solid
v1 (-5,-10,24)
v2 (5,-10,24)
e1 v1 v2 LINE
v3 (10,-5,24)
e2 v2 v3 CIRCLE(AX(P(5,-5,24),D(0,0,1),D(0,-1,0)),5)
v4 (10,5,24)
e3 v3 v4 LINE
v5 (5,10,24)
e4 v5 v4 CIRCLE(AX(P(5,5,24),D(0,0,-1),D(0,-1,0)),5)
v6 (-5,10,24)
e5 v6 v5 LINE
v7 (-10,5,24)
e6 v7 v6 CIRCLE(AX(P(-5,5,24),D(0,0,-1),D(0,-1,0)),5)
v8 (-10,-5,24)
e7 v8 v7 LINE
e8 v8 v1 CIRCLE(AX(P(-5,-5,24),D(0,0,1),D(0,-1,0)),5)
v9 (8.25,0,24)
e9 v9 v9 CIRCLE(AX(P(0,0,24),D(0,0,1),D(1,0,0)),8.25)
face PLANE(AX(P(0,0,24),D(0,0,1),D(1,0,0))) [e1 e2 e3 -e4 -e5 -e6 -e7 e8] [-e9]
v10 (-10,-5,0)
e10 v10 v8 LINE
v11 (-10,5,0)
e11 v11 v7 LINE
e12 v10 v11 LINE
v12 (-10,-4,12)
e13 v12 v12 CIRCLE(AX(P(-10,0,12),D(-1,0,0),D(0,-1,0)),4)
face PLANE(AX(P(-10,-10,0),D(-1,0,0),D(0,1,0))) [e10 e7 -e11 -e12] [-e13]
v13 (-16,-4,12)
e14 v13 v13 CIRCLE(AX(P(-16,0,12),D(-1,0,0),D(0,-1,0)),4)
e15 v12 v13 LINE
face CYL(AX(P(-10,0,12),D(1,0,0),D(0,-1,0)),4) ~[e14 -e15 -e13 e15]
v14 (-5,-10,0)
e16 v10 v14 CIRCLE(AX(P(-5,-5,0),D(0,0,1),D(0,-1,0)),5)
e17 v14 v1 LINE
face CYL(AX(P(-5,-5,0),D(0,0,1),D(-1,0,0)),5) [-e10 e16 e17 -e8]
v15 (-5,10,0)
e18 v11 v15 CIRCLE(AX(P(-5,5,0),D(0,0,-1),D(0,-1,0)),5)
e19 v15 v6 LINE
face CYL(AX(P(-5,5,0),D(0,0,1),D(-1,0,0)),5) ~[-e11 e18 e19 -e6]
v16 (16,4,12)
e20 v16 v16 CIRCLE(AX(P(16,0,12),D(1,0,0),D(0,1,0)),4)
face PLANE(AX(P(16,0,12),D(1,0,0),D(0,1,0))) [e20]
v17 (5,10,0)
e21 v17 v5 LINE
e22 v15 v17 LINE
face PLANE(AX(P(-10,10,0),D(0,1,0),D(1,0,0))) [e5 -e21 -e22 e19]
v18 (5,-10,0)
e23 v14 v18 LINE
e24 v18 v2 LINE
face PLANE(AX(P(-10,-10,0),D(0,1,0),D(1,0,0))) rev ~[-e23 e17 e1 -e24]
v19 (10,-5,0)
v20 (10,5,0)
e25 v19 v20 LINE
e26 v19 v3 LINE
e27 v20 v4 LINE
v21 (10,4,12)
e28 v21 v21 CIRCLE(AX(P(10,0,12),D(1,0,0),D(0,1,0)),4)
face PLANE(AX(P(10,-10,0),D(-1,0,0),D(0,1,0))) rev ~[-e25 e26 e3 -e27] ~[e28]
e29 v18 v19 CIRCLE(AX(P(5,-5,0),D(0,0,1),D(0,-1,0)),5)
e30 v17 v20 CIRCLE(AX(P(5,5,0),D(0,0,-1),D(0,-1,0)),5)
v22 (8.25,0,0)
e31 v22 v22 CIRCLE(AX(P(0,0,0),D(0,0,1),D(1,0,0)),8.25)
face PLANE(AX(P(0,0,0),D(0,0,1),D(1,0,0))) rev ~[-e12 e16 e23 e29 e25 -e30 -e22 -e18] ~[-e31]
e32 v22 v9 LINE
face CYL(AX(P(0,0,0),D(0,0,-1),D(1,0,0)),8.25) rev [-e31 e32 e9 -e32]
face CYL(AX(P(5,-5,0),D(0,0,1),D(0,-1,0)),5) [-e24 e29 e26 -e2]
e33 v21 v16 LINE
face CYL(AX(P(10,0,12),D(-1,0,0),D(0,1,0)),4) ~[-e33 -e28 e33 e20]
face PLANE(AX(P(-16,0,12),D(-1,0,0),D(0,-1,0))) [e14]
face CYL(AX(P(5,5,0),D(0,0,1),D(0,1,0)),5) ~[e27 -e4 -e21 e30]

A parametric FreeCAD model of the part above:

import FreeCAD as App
import Part
import Sketcher


def edges_at(feature, points):
    """Names of the edges that pass closest to the given points."""
    edges = feature.Shape.Edges
    near = lambda p: min(range(len(edges)), key=lambda i: edges[i].distToShape(Part.Vertex(*p))[0])
    return sorted({f"Edge{near(p) + 1}" for p in points})


def add_polygon(sketch, points):
    """Adds a closed chain of lines whose ends are joined by coincident constraints."""
    first, n = sketch.GeometryCount, len(points)
    for a, b in zip(points, points[1:] + points[:1]):
        sketch.addGeometry(Part.LineSegment(App.Vector(*a, 0), App.Vector(*b, 0)), False)
    for i in range(n):
        sketch.addConstraint(Sketcher.Constraint("Coincident", first + i, 2, first + (i + 1) % n, 1))

doc = App.newDocument("Part")
body = doc.addObject("PartDesign::Body", "Body")

# Sketch on XY plane
sketch1 = body.newObject("Sketcher::SketchObject", "Sketch")
sketch1.AttachmentSupport = (doc.getObject("XY_Plane"), [""])
sketch1.MapMode = "FlatFace"
add_polygon(sketch1, [(-10, 10), (-10, -10), (10, -10), (10, 10)])  # lines 0-3
sketch1.addGeometry(Part.Circle(App.Vector(0, 0, 0), App.Vector(0, 0, 1), 8), False)  # 4
sketch1.addConstraint([
    Sketcher.Constraint("Vertical", 0),
    Sketcher.Constraint("Horizontal", 1),
    Sketcher.Constraint("Vertical", 2),
    Sketcher.Constraint("Horizontal", 3),
    Sketcher.Constraint("Coincident", 4, 3, -1, 1),
    Sketcher.Constraint("Symmetric", 0, 2, 2, 2, -1, 1),
    Sketcher.Constraint("Equal", 3, 0),
    Sketcher.Constraint("Diameter", 4, 16.5),
    Sketcher.Constraint("DistanceX", 1, 1, 1, 2, 20.0),
])
pad1 = body.newObject("PartDesign::Pad", "Pad")
pad1.Profile = sketch1
pad1.Length = 24
doc.recompute()

fillet = body.newObject("PartDesign::Fillet", "Fillet")
fillet.Base = (pad1, edges_at(pad1, [
    (10, 10, 12),
    (10, -10, 12),
    (-10, 10, 12),
    (-10, -10, 12),
]))
fillet.Radius = 5

# Sketch on YZ plane
sketch2 = body.newObject("Sketcher::SketchObject", "Sketch001")
sketch2.AttachmentSupport = (doc.getObject("YZ_Plane"), [""])
sketch2.MapMode = "FlatFace"
sketch2.AttachmentOffset = App.Placement(App.Vector(0, 0, 10), App.Rotation())
sketch2.addGeometry(Part.Circle(App.Vector(0, 12, 0), App.Vector(0, 0, 1), 4), False)
sketch2.addConstraint([
    Sketcher.Constraint("PointOnObject", 0, 3, -2),
    Sketcher.Constraint("Diameter", 0, 8.0),
    Sketcher.Constraint("DistanceY", -1, 1, 0, 3, 12.0),
])
pad2 = body.newObject("PartDesign::Pad", "Pad001")
pad2.Profile = sketch2
pad2.Length = 6

# Sketch on YZ plane
sketch3 = body.newObject("Sketcher::SketchObject", "Sketch002")
sketch3.AttachmentSupport = (doc.getObject("YZ_Plane"), [""])
sketch3.MapMode = "FlatFace"
sketch3.AttachmentOffset = App.Placement(App.Vector(0, 0, -10), App.Rotation())
sketch3.addGeometry(Part.Circle(App.Vector(0, 12, 0), App.Vector(0, 0, 1), 4), False)
sketch3.addConstraint([
    Sketcher.Constraint("PointOnObject", 0, 3, -2),
    Sketcher.Constraint("Diameter", 0, 8.0),
    Sketcher.Constraint("DistanceY", -1, 1, 0, 3, 12.0),
])
pad3 = body.newObject("PartDesign::Pad", "Pad002")
pad3.Profile = sketch3
pad3.Length = 6
pad3.Reversed = True

doc.recompute()
